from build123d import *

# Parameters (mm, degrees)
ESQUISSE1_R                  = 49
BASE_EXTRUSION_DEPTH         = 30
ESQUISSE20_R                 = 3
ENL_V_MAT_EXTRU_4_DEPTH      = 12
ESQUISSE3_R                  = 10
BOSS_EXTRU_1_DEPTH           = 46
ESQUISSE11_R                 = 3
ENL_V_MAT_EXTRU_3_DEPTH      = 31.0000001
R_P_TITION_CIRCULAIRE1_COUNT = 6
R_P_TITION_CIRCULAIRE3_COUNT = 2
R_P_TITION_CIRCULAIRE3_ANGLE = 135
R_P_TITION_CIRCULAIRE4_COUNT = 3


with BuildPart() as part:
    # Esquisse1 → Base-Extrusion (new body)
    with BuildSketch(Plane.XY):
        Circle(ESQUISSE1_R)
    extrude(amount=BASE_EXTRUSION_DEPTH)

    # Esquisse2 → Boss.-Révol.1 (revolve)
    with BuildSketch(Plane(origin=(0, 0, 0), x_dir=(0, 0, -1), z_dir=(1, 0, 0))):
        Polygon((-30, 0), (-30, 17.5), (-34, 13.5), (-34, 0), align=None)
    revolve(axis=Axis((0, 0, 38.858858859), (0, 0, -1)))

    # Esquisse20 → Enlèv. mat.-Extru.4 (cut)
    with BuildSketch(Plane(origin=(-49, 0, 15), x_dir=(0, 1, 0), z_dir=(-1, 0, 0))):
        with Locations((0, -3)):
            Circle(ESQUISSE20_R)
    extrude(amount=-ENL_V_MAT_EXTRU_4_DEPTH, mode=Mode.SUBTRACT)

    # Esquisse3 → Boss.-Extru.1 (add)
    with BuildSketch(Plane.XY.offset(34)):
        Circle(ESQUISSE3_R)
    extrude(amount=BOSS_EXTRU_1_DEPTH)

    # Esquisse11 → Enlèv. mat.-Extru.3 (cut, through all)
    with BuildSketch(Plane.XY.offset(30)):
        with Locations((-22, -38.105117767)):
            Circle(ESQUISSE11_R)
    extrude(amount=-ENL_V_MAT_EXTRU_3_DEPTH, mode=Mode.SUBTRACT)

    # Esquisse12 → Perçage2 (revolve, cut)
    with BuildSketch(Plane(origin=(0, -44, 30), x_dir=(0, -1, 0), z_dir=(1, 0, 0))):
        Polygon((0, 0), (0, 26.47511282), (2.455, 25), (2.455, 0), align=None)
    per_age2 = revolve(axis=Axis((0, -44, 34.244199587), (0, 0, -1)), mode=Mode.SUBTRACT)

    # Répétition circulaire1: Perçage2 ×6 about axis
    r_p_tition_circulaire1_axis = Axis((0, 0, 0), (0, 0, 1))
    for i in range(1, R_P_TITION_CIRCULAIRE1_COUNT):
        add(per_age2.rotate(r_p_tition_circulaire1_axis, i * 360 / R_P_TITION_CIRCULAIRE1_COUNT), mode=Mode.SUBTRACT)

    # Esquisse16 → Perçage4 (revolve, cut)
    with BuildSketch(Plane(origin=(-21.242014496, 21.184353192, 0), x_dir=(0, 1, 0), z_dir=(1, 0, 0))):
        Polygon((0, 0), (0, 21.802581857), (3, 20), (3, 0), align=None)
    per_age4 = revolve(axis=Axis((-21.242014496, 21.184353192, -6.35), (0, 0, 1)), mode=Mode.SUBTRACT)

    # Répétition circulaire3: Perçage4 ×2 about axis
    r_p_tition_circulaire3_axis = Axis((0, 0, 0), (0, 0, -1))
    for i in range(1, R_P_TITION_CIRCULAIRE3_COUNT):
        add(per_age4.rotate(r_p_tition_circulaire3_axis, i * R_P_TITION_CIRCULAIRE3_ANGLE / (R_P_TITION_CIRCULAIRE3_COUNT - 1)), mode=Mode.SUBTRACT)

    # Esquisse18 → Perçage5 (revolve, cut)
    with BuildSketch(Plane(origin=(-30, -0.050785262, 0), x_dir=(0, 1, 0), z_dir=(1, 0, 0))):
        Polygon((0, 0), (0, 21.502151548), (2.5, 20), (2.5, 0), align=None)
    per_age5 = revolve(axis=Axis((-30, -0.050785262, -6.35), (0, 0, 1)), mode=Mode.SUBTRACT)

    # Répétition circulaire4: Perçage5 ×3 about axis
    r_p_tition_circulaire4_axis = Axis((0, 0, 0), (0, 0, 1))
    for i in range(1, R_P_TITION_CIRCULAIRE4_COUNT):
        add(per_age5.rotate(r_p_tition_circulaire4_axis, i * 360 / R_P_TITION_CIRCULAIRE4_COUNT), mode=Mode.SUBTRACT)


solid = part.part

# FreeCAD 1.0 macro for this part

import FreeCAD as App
import Part
import Sketcher
Q = App.Units.Quantity


def add_polygon(sketch, points):
    """Adds a closed chain of lines whose ends are joined by coincident constraints."""
    first, n = sketch.GeometryCount, len(points)
    for a, b in zip(points, points[1:] + points[:1]):
        sketch.addGeometry(Part.LineSegment(App.Vector(*a, 0), App.Vector(*b, 0)), False)
    for i in range(n):
        sketch.addConstraint(Sketcher.Constraint("Coincident", first + i, 2, first + (i + 1) % n, 1))

doc = App.newDocument("Part")
body = doc.addObject("PartDesign::Body", "Body")

sketch1 = body.newObject("Sketcher::SketchObject", "Sketch")
sketch1.AttachmentSupport = (doc.getObject("XY_Plane"), [""])
sketch1.MapMode = "FlatFace"
sketch1.addGeometry(Part.Circle(App.Vector(0, 0, 0), App.Vector(0, 0, 1), 49), False)
sketch1.addConstraint(Sketcher.Constraint("Coincident", 0, 3, -1, 1))
sketch1.addConstraint(Sketcher.Constraint("Diameter", 0, Q("98 mm")))
pad1 = body.newObject("PartDesign::Pad", "Pad")
pad1.Profile = sketch1
pad1.Length = 30

sketch2 = body.newObject("Sketcher::SketchObject", "Sketch001")
sketch2.AttachmentSupport = (doc.getObject("YZ_Plane"), [""])
sketch2.MapMode = "FlatFace"
add_polygon(sketch2, [(0, 30), (17.5, 30), (13.5, 34), (0, 34)])
sketch2.addConstraint(Sketcher.Constraint("Horizontal", 0))
sketch2.addConstraint(Sketcher.Constraint("Horizontal", 2))
sketch2.addConstraint(Sketcher.Constraint("Vertical", 3))
sketch2.addConstraint(Sketcher.Constraint("PointOnObject", 2, 2, -2))
sketch2.addConstraint(Sketcher.Constraint("DistanceY", 3, 2, 3, 1, Q("4 mm")))
sketch2.addConstraint(Sketcher.Constraint("Angle", 1, Q("135 deg")))
sketch2.addConstraint(Sketcher.Constraint("DistanceX", 0, 1, 0, 2, Q("17.5 mm")))
sketch2.addConstraint(Sketcher.Constraint("DistanceY", -1, 1, 0, 2, Q("30 mm")))
revolution = body.newObject("PartDesign::Revolution", "Revolution")
revolution.Profile = sketch2
revolution.ReferenceAxis = (sketch2, ["V_Axis"])
revolution.Angle = 360

sketch3 = body.newObject("Sketcher::SketchObject", "Sketch002")
sketch3.AttachmentSupport = (doc.getObject("YZ_Plane"), [""])
sketch3.MapMode = "FlatFace"
sketch3.AttachmentOffset = App.Placement(App.Vector(0, 0, -49), App.Rotation())
sketch3.addGeometry(Part.Circle(App.Vector(0, 18, 0), App.Vector(0, 0, 1), 3), False)
sketch3.addConstraint(Sketcher.Constraint("PointOnObject", 0, 3, -2))
sketch3.addConstraint(Sketcher.Constraint("Diameter", 0, Q("6 mm")))
sketch3.addConstraint(Sketcher.Constraint("DistanceY", -1, 1, 0, 3, Q("18 mm")))
pocket1 = body.newObject("PartDesign::Pocket", "Pocket")
pocket1.Profile = sketch3
pocket1.Length = 12
pocket1.Reversed = True

sketch4 = body.newObject("Sketcher::SketchObject", "Sketch003")
sketch4.AttachmentSupport = (doc.getObject("XY_Plane"), [""])
sketch4.MapMode = "FlatFace"
sketch4.AttachmentOffset = App.Placement(App.Vector(0, 0, 34), App.Rotation())
sketch4.addGeometry(Part.Circle(App.Vector(0, 0, 0), App.Vector(0, 0, 1), 10), False)
sketch4.addConstraint(Sketcher.Constraint("Coincident", 0, 3, -1, 1))
sketch4.addConstraint(Sketcher.Constraint("Diameter", 0, Q("20 mm")))
pad2 = body.newObject("PartDesign::Pad", "Pad001")
pad2.Profile = sketch4
pad2.Length = 46

sketch5 = body.newObject("Sketcher::SketchObject", "Sketch004")
sketch5.AttachmentSupport = (doc.getObject("XY_Plane"), [""])
sketch5.MapMode = "FlatFace"
sketch5.AttachmentOffset = App.Placement(App.Vector(0, 0, 30), App.Rotation())
sketch5.addGeometry(Part.Circle(App.Vector(-22, -38.105118, 0), App.Vector(0, 0, 1), 3), False)
sketch5.addConstraint(Sketcher.Constraint("Diameter", 0, Q("6 mm")))
sketch5.addConstraint(Sketcher.Constraint("DistanceX", 0, 3, -1, 1, Q("22 mm")))
sketch5.addConstraint(Sketcher.Constraint("DistanceY", 0, 3, -1, 1, Q("38.105118 mm")))
pocket2 = body.newObject("PartDesign::Pocket", "Pocket001")
pocket2.Profile = sketch5
pocket2.Type = "ThroughAll"

sketch6 = body.newObject("Sketcher::SketchObject", "Sketch005")
sketch6.AttachmentSupport = (doc.getObject("YZ_Plane"), [""])
sketch6.MapMode = "FlatFace"
add_polygon(sketch6, [(-44, 3.524887), (-44, 30), (-46.455, 30), (-46.455, 5)])
sketch6.addGeometry(Part.LineSegment(App.Vector(-44, 30, 0), App.Vector(-44, 3.524887, 0)), True)
sketch6.addConstraint(Sketcher.Constraint("Vertical", 0))
sketch6.addConstraint(Sketcher.Constraint("Horizontal", 1))
sketch6.addConstraint(Sketcher.Constraint("Vertical", 2))
sketch6.addConstraint(Sketcher.Constraint("Vertical", 4))
sketch6.addConstraint(Sketcher.Constraint("Coincident", 4, 1, 0, 2))
sketch6.addConstraint(Sketcher.Constraint("Equal", 0, 4))
sketch6.addConstraint(Sketcher.Constraint("DistanceY", 2, 2, 2, 1, Q("25 mm")))
sketch6.addConstraint(Sketcher.Constraint("Angle", 3, Q("-31 deg")))
sketch6.addConstraint(Sketcher.Constraint("DistanceX", 0, 2, -1, 1, Q("44 mm")))
sketch6.addConstraint(Sketcher.Constraint("DistanceY", -1, 1, 0, 2, Q("30 mm")))
sketch6.addConstraint(Sketcher.Constraint("DistanceX", 1, 2, 1, 1, Q("2.455 mm")))
groove = body.newObject("PartDesign::Groove", "Groove")
groove.Profile = sketch6
groove.ReferenceAxis = (sketch6, ["Axis0"])
groove.Angle = 360
doc.recompute()

polarpattern = body.newObject("PartDesign::PolarPattern", "PolarPattern")
polarpattern.Originals = [groove]
polarpattern.Axis = (doc.getObject("Z_Axis"), [""])
polarpattern.Angle = 360
polarpattern.Occurrences = 6
body.Tip = polarpattern

sketch7 = body.newObject("Sketcher::SketchObject", "Sketch006")
sketch7.AttachmentSupport = (doc.getObject("YZ_Plane"), [""])
sketch7.MapMode = "FlatFace"
sketch7.AttachmentOffset = App.Placement(App.Vector(0, 0, -21.242014), App.Rotation())
add_polygon(sketch7, [(21.184353, 21.802582), (21.184353, 0), (24.184353, 0), (24.184353, 20)])
sketch7.addGeometry(Part.LineSegment(App.Vector(21.184353, 0, 0), App.Vector(21.184353, 21.802582, 0)), True)
sketch7.addConstraint(Sketcher.Constraint("Vertical", 0))
sketch7.addConstraint(Sketcher.Constraint("Horizontal", 1))
sketch7.addConstraint(Sketcher.Constraint("Vertical", 2))
sketch7.addConstraint(Sketcher.Constraint("Vertical", 4))
sketch7.addConstraint(Sketcher.Constraint("Coincident", 4, 1, 0, 2))
sketch7.addConstraint(Sketcher.Constraint("PointOnObject", 0, 2, -1))
sketch7.addConstraint(Sketcher.Constraint("Equal", 0, 4))
sketch7.addConstraint(Sketcher.Constraint("DistanceX", 1, 1, 1, 2, Q("3 mm")))
sketch7.addConstraint(Sketcher.Constraint("DistanceY", 2, 1, 2, 2, Q("20 mm")))
sketch7.addConstraint(Sketcher.Constraint("Angle", 3, Q("149 deg")))
sketch7.addConstraint(Sketcher.Constraint("DistanceX", -1, 1, 0, 2, Q("21.184353 mm")))
groove2 = body.newObject("PartDesign::Groove", "Groove001")
groove2.Profile = sketch7
groove2.ReferenceAxis = (sketch7, ["Axis0"])
groove2.Angle = 360
doc.recompute()

polarpattern2 = body.newObject("PartDesign::PolarPattern", "PolarPattern001")
polarpattern2.Originals = [groove2]
polarpattern2.Axis = (doc.getObject("Z_Axis"), [""])
polarpattern2.Angle = 135
polarpattern2.Occurrences = 2
polarpattern2.Reversed = True
body.Tip = polarpattern2

sketch8 = body.newObject("Sketcher::SketchObject", "Sketch007")
sketch8.AttachmentSupport = (doc.getObject("YZ_Plane"), [""])
sketch8.MapMode = "FlatFace"
sketch8.AttachmentOffset = App.Placement(App.Vector(0, 0, -30), App.Rotation())
add_polygon(sketch8, [(-0.050785, 21.502152), (-0.050785, 0), (2.449215, 0), (2.449215, 20)])
sketch8.addGeometry(Part.LineSegment(App.Vector(-0.050785, 0, 0), App.Vector(-0.050785, 21.502152, 0)), True)
sketch8.addConstraint(Sketcher.Constraint("Vertical", 0))
sketch8.addConstraint(Sketcher.Constraint("Horizontal", 1))
sketch8.addConstraint(Sketcher.Constraint("Vertical", 2))
sketch8.addConstraint(Sketcher.Constraint("Vertical", 4))
sketch8.addConstraint(Sketcher.Constraint("Coincident", 4, 1, 0, 2))
sketch8.addConstraint(Sketcher.Constraint("PointOnObject", 0, 2, -1))
sketch8.addConstraint(Sketcher.Constraint("Equal", 0, 4))
sketch8.addConstraint(Sketcher.Constraint("DistanceY", 2, 1, 2, 2, Q("20 mm")))
sketch8.addConstraint(Sketcher.Constraint("Angle", 3, Q("149 deg")))
sketch8.addConstraint(Sketcher.Constraint("DistanceX", 1, 1, 1, 2, Q("2.5 mm")))
sketch8.addConstraint(Sketcher.Constraint("DistanceX", 0, 2, -1, 1, Q("0.050785 mm")))
groove3 = body.newObject("PartDesign::Groove", "Groove002")
groove3.Profile = sketch8
groove3.ReferenceAxis = (sketch8, ["Axis0"])
groove3.Angle = 360
doc.recompute()

polarpattern3 = body.newObject("PartDesign::PolarPattern", "PolarPattern002")
polarpattern3.Originals = [groove3]
polarpattern3.Axis = (doc.getObject("Z_Axis"), [""])
polarpattern3.Angle = 360
polarpattern3.Occurrences = 3
body.Tip = polarpattern3

doc.recompute()
